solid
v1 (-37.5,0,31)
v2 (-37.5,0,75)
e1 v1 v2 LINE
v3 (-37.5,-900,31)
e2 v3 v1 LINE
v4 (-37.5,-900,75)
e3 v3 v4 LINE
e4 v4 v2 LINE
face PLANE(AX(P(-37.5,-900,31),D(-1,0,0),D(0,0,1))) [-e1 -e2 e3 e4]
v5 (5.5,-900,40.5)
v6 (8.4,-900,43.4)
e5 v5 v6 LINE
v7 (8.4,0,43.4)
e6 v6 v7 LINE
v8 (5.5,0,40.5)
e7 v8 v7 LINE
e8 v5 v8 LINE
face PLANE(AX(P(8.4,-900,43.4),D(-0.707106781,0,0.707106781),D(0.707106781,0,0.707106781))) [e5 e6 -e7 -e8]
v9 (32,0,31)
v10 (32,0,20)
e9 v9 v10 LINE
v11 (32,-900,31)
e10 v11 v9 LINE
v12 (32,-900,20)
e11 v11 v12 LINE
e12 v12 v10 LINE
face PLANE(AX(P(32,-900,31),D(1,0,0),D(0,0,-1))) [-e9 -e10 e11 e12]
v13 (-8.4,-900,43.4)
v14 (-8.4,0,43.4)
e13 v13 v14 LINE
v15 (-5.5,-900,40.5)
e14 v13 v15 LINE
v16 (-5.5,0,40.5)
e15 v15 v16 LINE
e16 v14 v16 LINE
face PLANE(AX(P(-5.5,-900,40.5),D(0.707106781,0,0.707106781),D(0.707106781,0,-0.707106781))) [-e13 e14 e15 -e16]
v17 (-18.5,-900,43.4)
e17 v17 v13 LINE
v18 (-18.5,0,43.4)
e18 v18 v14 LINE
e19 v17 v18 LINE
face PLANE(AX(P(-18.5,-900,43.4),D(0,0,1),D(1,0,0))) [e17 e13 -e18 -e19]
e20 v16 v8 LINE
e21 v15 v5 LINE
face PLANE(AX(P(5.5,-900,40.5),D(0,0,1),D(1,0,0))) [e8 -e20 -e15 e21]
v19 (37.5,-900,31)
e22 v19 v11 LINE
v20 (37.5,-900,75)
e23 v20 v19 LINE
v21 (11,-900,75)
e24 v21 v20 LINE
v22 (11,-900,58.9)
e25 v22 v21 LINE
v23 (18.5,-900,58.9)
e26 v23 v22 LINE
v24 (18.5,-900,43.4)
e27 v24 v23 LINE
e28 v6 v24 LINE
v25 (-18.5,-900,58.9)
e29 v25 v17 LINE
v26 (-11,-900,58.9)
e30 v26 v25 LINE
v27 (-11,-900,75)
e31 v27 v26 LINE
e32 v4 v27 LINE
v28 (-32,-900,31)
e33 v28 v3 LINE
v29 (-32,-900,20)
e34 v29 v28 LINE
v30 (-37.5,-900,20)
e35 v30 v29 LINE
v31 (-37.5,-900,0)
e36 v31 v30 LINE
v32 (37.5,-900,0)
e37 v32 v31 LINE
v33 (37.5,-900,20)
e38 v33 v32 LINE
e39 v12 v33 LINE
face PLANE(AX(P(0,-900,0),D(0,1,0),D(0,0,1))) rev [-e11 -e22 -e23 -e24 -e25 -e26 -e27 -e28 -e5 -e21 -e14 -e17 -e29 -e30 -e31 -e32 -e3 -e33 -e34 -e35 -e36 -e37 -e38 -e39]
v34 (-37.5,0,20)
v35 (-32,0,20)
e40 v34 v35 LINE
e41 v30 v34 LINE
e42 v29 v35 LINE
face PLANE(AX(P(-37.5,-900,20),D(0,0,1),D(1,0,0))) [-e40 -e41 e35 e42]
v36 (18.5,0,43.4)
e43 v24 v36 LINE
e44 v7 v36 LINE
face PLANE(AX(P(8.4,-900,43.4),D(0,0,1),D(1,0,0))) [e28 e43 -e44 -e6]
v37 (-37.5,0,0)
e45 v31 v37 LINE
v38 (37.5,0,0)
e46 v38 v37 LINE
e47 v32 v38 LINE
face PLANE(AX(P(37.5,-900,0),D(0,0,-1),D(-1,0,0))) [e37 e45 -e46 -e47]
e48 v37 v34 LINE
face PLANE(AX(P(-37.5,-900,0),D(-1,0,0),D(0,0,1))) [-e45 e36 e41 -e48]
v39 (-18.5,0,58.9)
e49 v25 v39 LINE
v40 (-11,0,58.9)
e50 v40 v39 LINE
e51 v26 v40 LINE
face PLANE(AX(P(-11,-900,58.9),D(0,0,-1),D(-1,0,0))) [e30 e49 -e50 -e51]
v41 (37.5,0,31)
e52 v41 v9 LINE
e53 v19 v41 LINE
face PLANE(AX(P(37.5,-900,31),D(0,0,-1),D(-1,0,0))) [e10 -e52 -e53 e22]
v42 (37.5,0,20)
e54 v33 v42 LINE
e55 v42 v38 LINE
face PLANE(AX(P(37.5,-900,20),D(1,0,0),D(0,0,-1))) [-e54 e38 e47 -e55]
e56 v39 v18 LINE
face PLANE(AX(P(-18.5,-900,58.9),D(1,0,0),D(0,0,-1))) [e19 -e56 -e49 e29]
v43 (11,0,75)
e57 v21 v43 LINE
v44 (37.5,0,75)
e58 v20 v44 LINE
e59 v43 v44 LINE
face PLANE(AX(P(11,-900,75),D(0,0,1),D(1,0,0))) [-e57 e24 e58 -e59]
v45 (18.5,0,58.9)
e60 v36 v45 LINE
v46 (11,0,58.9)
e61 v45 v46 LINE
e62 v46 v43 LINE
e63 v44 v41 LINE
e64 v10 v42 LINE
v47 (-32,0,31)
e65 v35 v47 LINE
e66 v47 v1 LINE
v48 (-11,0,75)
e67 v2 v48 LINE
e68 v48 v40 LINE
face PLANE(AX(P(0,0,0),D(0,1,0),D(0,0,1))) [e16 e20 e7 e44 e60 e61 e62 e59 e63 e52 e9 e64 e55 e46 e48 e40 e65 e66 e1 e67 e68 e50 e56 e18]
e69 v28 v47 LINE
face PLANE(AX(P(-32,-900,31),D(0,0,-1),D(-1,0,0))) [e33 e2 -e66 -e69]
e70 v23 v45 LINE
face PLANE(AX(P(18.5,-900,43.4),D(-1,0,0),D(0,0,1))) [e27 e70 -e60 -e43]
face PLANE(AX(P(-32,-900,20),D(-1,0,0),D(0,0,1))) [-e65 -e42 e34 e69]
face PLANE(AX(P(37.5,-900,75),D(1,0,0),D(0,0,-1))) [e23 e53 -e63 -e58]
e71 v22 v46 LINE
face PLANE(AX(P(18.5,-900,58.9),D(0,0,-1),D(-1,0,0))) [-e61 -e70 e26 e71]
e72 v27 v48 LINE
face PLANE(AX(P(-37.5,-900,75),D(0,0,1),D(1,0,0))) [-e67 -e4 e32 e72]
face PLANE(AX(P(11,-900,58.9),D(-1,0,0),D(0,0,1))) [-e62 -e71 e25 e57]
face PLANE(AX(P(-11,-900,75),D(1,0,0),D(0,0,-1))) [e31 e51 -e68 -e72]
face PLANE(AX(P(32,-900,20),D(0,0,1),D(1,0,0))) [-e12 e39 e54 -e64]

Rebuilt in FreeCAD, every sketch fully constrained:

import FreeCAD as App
import Part
import Sketcher
from FreeCAD import Vector

doc = App.newDocument("Part")
body = doc.addObject("PartDesign::Body", "Body")

sketch1 = body.newObject("Sketcher::SketchObject", "Sketch")
sketch1.AttachmentSupport = (doc.getObject("XZ_Plane"), [""])
sketch1.MapMode = "FlatFace"
sketch1.addGeometry([
    Part.LineSegment(Vector(37.5, 0, 0), Vector(-37.5, 0, 0)),
    Part.LineSegment(Vector(-37.5, 0, 0), Vector(-37.5, 20, 0)),
    Part.LineSegment(Vector(-37.5, 20, 0), Vector(-32, 20, 0)),
    Part.LineSegment(Vector(-32, 20, 0), Vector(-32, 31, 0)),
    Part.LineSegment(Vector(-32, 31, 0), Vector(-37.5, 31, 0)),
    Part.LineSegment(Vector(-37.5, 31, 0), Vector(-37.5, 75, 0)),
    Part.LineSegment(Vector(-37.5, 75, 0), Vector(-11, 75, 0)),
    Part.LineSegment(Vector(-11, 75, 0), Vector(-11, 58.9, 0)),
    Part.LineSegment(Vector(-11, 58.9, 0), Vector(-18.5, 58.9, 0)),
    Part.LineSegment(Vector(-18.5, 58.9, 0), Vector(-18.5, 43.4, 0)),
    Part.LineSegment(Vector(-18.5, 43.4, 0), Vector(-8.4, 43.4, 0)),
    Part.LineSegment(Vector(-8.4, 43.4, 0), Vector(-5.5, 40.5, 0)),
    Part.LineSegment(Vector(-5.5, 40.5, 0), Vector(5.5, 40.5, 0)),
    Part.LineSegment(Vector(5.5, 40.5, 0), Vector(8.4, 43.4, 0)),
    Part.LineSegment(Vector(8.4, 43.4, 0), Vector(18.5, 43.4, 0)),
    Part.LineSegment(Vector(18.5, 43.4, 0), Vector(18.5, 58.9, 0)),
    Part.LineSegment(Vector(18.5, 58.9, 0), Vector(11, 58.9, 0)),
    Part.LineSegment(Vector(11, 58.9, 0), Vector(11, 75, 0)),
    Part.LineSegment(Vector(11, 75, 0), Vector(37.5, 75, 0)),
    Part.LineSegment(Vector(37.5, 75, 0), Vector(37.5, 31, 0)),
    Part.LineSegment(Vector(37.5, 31, 0), Vector(32, 31, 0)),
    Part.LineSegment(Vector(32, 31, 0), Vector(32, 20, 0)),
    Part.LineSegment(Vector(32, 20, 0), Vector(37.5, 20, 0)),
    Part.LineSegment(Vector(37.5, 20, 0), Vector(37.5, 0, 0)),
], False)
sketch1.addConstraint([
    Sketcher.Constraint("Coincident", 0, 2, 1, 1),
    Sketcher.Constraint("Coincident", 1, 2, 2, 1),
    Sketcher.Constraint("Coincident", 2, 2, 3, 1),
    Sketcher.Constraint("Coincident", 3, 2, 4, 1),
    Sketcher.Constraint("Coincident", 4, 2, 5, 1),
    Sketcher.Constraint("Coincident", 5, 2, 6, 1),
    Sketcher.Constraint("Coincident", 6, 2, 7, 1),
    Sketcher.Constraint("Coincident", 7, 2, 8, 1),
    Sketcher.Constraint("Coincident", 8, 2, 9, 1),
    Sketcher.Constraint("Coincident", 9, 2, 10, 1),
    Sketcher.Constraint("Coincident", 10, 2, 11, 1),
    Sketcher.Constraint("Coincident", 11, 2, 12, 1),
    Sketcher.Constraint("Coincident", 12, 2, 13, 1),
    Sketcher.Constraint("Coincident", 13, 2, 14, 1),
    Sketcher.Constraint("Coincident", 14, 2, 15, 1),
    Sketcher.Constraint("Coincident", 15, 2, 16, 1),
    Sketcher.Constraint("Coincident", 16, 2, 17, 1),
    Sketcher.Constraint("Coincident", 17, 2, 18, 1),
    Sketcher.Constraint("Coincident", 18, 2, 19, 1),
    Sketcher.Constraint("Coincident", 19, 2, 20, 1),
    Sketcher.Constraint("Coincident", 20, 2, 21, 1),
    Sketcher.Constraint("Coincident", 21, 2, 22, 1),
    Sketcher.Constraint("Coincident", 22, 2, 23, 1),
    Sketcher.Constraint("Coincident", 23, 2, 0, 1),
    Sketcher.Constraint("Horizontal", 0),
    Sketcher.Constraint("Vertical", 1),
    Sketcher.Constraint("Horizontal", 2),
    Sketcher.Constraint("Vertical", 3),
    Sketcher.Constraint("Horizontal", 4),
    Sketcher.Constraint("Vertical", 5),
    Sketcher.Constraint("Horizontal", 6),
    Sketcher.Constraint("Vertical", 7),
    Sketcher.Constraint("Horizontal", 8),
    Sketcher.Constraint("Vertical", 9),
    Sketcher.Constraint("Horizontal", 10),
    Sketcher.Constraint("Horizontal", 12),
    Sketcher.Constraint("Horizontal", 14),
    Sketcher.Constraint("Vertical", 15),
    Sketcher.Constraint("Horizontal", 16),
    Sketcher.Constraint("Vertical", 17),
    Sketcher.Constraint("Horizontal", 18),
    Sketcher.Constraint("Vertical", 19),
    Sketcher.Constraint("Horizontal", 20),
    Sketcher.Constraint("Vertical", 21),
    Sketcher.Constraint("Horizontal", 22),
    Sketcher.Constraint("Vertical", 23),
    Sketcher.Constraint("Symmetric", 0, 2, 23, 2, -1, 1),
    Sketcher.Constraint("Symmetric", 10, 2, 13, 2, -2),
    Sketcher.Constraint("Symmetric", 8, 2, 15, 2, -2),
    Sketcher.Constraint("Symmetric", 6, 2, 17, 2, -2),
    Sketcher.Constraint("Symmetric", 4, 2, 19, 2, -2),
    Sketcher.Constraint("Symmetric", 2, 2, 21, 2, -2),
    Sketcher.Constraint("Perpendicular", 11, 13),
    Sketcher.Constraint("Vertical", 1, 2, 4, 2),
    Sketcher.Constraint("Equal", 12, 3),
    Sketcher.Constraint("Equal", 11, 13),
    Sketcher.Constraint("DistanceX", 0, 2, 0, 1, 75.0),
    Sketcher.Constraint("DistanceX", 12, 1, 12, 2, 11.0),
    Sketcher.Constraint("DistanceY", 1, 1, 1, 2, 20.0),
    Sketcher.Constraint("DistanceY", 5, 1, 5, 2, 44.0),
    Sketcher.Constraint("DistanceX", 2, 1, 2, 2, 5.5),
    Sketcher.Constraint("DistanceX", 6, 1, 6, 2, 26.5),
    Sketcher.Constraint("DistanceX", 8, 2, 8, 1, 7.5),
    Sketcher.Constraint("DistanceX", 10, 1, 10, 2, 10.1),
    Sketcher.Constraint("DistanceY", 7, 2, 7, 1, 16.1),
    Sketcher.Constraint("DistanceY", 9, 2, 9, 1, 15.5),
])
pad1 = body.newObject("PartDesign::Pad", "Pad")
pad1.Profile = sketch1
pad1.Length = 900

doc.recompute()
